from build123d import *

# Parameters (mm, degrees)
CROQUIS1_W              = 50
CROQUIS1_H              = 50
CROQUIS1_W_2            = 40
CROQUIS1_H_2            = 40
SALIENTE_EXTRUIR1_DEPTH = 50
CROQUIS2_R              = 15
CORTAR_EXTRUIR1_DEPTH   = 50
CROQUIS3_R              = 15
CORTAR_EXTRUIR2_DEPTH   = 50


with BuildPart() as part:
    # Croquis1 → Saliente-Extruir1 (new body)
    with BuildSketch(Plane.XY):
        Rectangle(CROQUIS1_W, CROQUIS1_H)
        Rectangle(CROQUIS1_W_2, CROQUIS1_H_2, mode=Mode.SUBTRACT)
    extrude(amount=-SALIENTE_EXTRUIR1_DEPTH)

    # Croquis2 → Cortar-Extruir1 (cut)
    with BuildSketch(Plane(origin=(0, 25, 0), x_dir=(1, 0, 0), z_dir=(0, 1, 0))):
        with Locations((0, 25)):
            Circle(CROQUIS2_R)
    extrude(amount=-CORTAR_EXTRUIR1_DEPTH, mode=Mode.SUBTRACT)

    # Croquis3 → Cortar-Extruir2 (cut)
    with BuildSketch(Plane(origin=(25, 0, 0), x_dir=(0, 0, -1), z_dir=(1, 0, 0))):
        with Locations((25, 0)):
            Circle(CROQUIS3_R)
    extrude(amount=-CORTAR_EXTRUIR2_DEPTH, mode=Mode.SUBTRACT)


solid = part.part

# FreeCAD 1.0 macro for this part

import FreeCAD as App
import Part
import Sketcher

V = App.Vector
Q = App.Units.Quantity


def add_polygon(sketch, points):
    """Adds a closed chain of lines whose ends are joined by coincident constraints."""
    first, n = sketch.GeometryCount, len(points)
    for a, b in zip(points, points[1:] + points[:1]):
        sketch.addGeometry(Part.LineSegment(App.Vector(*a, 0), App.Vector(*b, 0)), False)
    for i in range(n):
        sketch.addConstraint(Sketcher.Constraint("Coincident", first + i, 2, first + (i + 1) % n, 1))

doc = App.newDocument("Part")
body = doc.addObject("PartDesign::Body", "Body")

sketch1 = body.newObject("Sketcher::SketchObject", "Sketch")
sketch1.AttachmentSupport = (doc.getObject("XY_Plane"), [""])
sketch1.MapMode = "FlatFace"
add_polygon(sketch1, [(-25, 25), (-25, -25), (25, -25), (25, 25)])
add_polygon(sketch1, [(20, -20), (-20, -20), (-20, 20), (20, 20)])
sketch1.addConstraint(Sketcher.Constraint("Vertical", 0))
sketch1.addConstraint(Sketcher.Constraint("Horizontal", 1))
sketch1.addConstraint(Sketcher.Constraint("Vertical", 2))
sketch1.addConstraint(Sketcher.Constraint("Horizontal", 3))
sketch1.addConstraint(Sketcher.Constraint("Horizontal", 4))
sketch1.addConstraint(Sketcher.Constraint("Vertical", 5))
sketch1.addConstraint(Sketcher.Constraint("Horizontal", 6))
sketch1.addConstraint(Sketcher.Constraint("Vertical", 7))
sketch1.addConstraint(Sketcher.Constraint("Symmetric", 0, 2, 2, 2, -1, 1))
sketch1.addConstraint(Sketcher.Constraint("Symmetric", 4, 2, 6, 2, -1, 1))
sketch1.addConstraint(Sketcher.Constraint("Equal", 3, 0))
sketch1.addConstraint(Sketcher.Constraint("Equal", 6, 5))
sketch1.addConstraint(Sketcher.Constraint("DistanceX", 1, 1, 1, 2, Q("50 mm")))
sketch1.addConstraint(Sketcher.Constraint("DistanceX", 4, 2, 4, 1, Q("40 mm")))
pad1 = body.newObject("PartDesign::Pad", "Pad")
pad1.Profile = sketch1
pad1.Length = 50
pad1.Reversed = True

sketch2 = body.newObject("Sketcher::SketchObject", "Sketch001")
sketch2.AttachmentSupport = (doc.getObject("XZ_Plane"), [""])
sketch2.MapMode = "FlatFace"
sketch2.AttachmentOffset = App.Placement(V(0, 0, -25), App.Rotation())
sketch2.addGeometry(Part.Circle(V(0, -25, 0), V(0, 0, 1), 15), False)
sketch2.addConstraint(Sketcher.Constraint("PointOnObject", 0, 3, -2))
sketch2.addConstraint(Sketcher.Constraint("Diameter", 0, Q("30 mm")))
sketch2.addConstraint(Sketcher.Constraint("DistanceY", 0, 3, -1, 1, Q("25 mm")))
pocket1 = body.newObject("PartDesign::Pocket", "Pocket")
pocket1.Profile = sketch2
pocket1.Length = 50
pocket1.Reversed = True

sketch3 = body.newObject("Sketcher::SketchObject", "Sketch002")
sketch3.AttachmentSupport = (doc.getObject("YZ_Plane"), [""])
sketch3.MapMode = "FlatFace"
sketch3.AttachmentOffset = App.Placement(V(0, 0, 25), App.Rotation())
sketch3.addGeometry(Part.Circle(V(0, -25, 0), V(0, 0, 1), 15), False)
sketch3.addConstraint(Sketcher.Constraint("PointOnObject", 0, 3, -2))
sketch3.addConstraint(Sketcher.Constraint("Diameter", 0, Q("30 mm")))
sketch3.addConstraint(Sketcher.Constraint("DistanceY", 0, 3, -1, 1, Q("25 mm")))
pocket2 = body.newObject("PartDesign::Pocket", "Pocket001")
pocket2.Profile = sketch3
pocket2.Length = 50

doc.recompute()
